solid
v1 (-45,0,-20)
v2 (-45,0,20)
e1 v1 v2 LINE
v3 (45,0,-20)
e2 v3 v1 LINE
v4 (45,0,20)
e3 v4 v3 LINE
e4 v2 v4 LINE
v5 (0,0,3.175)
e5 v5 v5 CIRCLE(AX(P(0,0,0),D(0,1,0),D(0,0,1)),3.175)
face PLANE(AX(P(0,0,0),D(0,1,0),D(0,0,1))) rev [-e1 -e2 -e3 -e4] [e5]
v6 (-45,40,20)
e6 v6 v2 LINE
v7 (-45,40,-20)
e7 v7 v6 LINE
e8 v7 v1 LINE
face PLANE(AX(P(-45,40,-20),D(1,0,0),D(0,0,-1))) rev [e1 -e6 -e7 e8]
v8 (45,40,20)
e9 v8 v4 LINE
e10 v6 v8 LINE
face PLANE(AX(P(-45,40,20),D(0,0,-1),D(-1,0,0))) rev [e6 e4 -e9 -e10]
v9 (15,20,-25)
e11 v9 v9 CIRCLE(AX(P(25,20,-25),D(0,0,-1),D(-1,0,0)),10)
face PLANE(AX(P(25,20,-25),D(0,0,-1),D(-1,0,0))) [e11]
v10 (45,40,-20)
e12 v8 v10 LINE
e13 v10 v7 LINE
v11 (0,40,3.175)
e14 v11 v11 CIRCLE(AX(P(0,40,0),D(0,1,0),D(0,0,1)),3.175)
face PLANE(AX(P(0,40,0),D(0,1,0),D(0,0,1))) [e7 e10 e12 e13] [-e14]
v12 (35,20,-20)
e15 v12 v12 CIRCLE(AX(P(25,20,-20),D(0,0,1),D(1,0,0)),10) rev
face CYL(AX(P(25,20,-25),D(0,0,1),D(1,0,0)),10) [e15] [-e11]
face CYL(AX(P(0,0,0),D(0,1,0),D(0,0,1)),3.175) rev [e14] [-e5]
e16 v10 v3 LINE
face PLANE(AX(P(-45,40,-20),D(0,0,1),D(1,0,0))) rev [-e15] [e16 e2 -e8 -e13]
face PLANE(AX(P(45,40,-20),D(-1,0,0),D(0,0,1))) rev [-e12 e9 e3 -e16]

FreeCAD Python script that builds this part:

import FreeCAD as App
import Part
import Sketcher


def add_polygon(sketch, points):
    """Adds a closed chain of lines whose ends are joined by coincident constraints."""
    first, n = sketch.GeometryCount, len(points)
    for a, b in zip(points, points[1:] + points[:1]):
        sketch.addGeometry(Part.LineSegment(App.Vector(*a, 0), App.Vector(*b, 0)), False)
    for i in range(n):
        sketch.addConstraint(Sketcher.Constraint("Coincident", first + i, 2, first + (i + 1) % n, 1))

doc = App.newDocument("Part")
body = doc.addObject("PartDesign::Body", "Body")

sketch1 = doc.addObject("Sketcher::SketchObject", "Sketch")
body.addObject(sketch1)
sketch1.AttachmentSupport = (doc.XZ_Plane, [""])
sketch1.MapMode = "FlatFace"
add_polygon(sketch1, [(-45, -20), (-45, 20), (45, 20), (45, -20)])
sketch1.addConstraint([
    Sketcher.Constraint("Vertical", 0),
    Sketcher.Constraint("Horizontal", 1),
    Sketcher.Constraint("Vertical", 2),
    Sketcher.Constraint("Horizontal", 3),
    Sketcher.Constraint("Symmetric", 0, 2, 2, 2, -1, 1),
    Sketcher.Constraint("DistanceX", 1, 1, 1, 2, 90.0),
    Sketcher.Constraint("DistanceY", 0, 1, 0, 2, 40.0),
])
pad1 = doc.addObject("PartDesign::Pad", "Pad")
body.addObject(pad1)
pad1.Profile = sketch1
pad1.Length = 40
pad1.Reversed = True

sketch2 = doc.addObject("Sketcher::SketchObject", "Sketch001")
body.addObject(sketch2)
sketch2.AttachmentSupport = (doc.XY_Plane, [""])
sketch2.MapMode = "FlatFace"
sketch2.AttachmentOffset = App.Placement(App.Vector(0, 0, -20), App.Rotation())
sketch2.addGeometry(Part.Circle(App.Vector(25, 20, 0), App.Vector(0, 0, 1), 10), False)
sketch2.addConstraint([
    Sketcher.Constraint("Diameter", 0, 20.0),
    Sketcher.Constraint("DistanceX", -1, 1, 0, 3, 25.0),
    Sketcher.Constraint("DistanceY", -1, 1, 0, 3, 20.0),
])
pad2 = doc.addObject("PartDesign::Pad", "Pad001")
body.addObject(pad2)
pad2.Profile = sketch2
pad2.Length = 5
pad2.Reversed = True

sketch3 = doc.addObject("Sketcher::SketchObject", "Sketch002")
body.addObject(sketch3)
sketch3.AttachmentSupport = (doc.XZ_Plane, [""])
sketch3.MapMode = "FlatFace"
sketch3.AttachmentOffset = App.Placement(App.Vector(0, 0, -40), App.Rotation())
sketch3.addGeometry(Part.Circle(App.Vector(0, 0, 0), App.Vector(0, 0, 1), 3.175), False)
sketch3.addConstraint([
    Sketcher.Constraint("Coincident", 0, 3, -1, 1),
    Sketcher.Constraint("Diameter", 0, 6.35),
])
pocket1 = doc.addObject("PartDesign::Pocket", "Pocket")
body.addObject(pocket1)
pocket1.Profile = sketch3
pocket1.Type = "ThroughAll"
pocket1.Reversed = True

doc.recompute()
